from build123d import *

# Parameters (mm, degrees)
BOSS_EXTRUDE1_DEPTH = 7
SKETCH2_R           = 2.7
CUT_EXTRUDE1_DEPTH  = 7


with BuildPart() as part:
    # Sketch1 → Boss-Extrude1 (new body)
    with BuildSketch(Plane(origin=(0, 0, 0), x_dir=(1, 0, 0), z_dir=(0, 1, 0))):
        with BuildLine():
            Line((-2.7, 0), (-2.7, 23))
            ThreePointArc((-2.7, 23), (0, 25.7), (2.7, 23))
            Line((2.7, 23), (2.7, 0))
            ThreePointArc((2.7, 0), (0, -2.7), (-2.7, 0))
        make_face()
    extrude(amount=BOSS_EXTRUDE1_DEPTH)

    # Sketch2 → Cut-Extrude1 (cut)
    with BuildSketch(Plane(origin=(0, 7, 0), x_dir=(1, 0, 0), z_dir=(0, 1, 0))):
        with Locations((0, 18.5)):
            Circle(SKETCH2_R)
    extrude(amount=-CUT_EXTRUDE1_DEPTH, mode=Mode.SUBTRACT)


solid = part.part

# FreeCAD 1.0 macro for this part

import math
import FreeCAD as App
import Part
import Sketcher

V = App.Vector
Q = App.Units.Quantity

doc = App.newDocument("Part")
body = doc.addObject("PartDesign::Body", "Body")
body.AllowCompound = True

# Sketch on XZ plane
sketch1 = body.newObject("Sketcher::SketchObject", "Sketch")
sketch1.AttachmentSupport = (doc.getObject("XZ_Plane"), [""])
sketch1.MapMode = "FlatFace"
sketch1.addGeometry([
    Part.LineSegment(V(-2.7, -23, 0), V(-2.7, 0, 0)),
    Part.ArcOfCircle(Part.Circle(V(0, 0, 0), V(0, 0, 1), 2.7), math.radians(0), math.radians(180)),
    Part.LineSegment(V(2.7, 0, 0), V(2.7, -23, 0)),
    Part.ArcOfCircle(Part.Circle(V(0, -23, 0), V(0, 0, 1), 2.7), math.radians(180), math.radians(360)),
], False)
sketch1.addConstraint([
    Sketcher.Constraint("Tangent", 0, 2, 1, 2),
    Sketcher.Constraint("Tangent", 1, 1, 2, 1),
    Sketcher.Constraint("Tangent", 2, 2, 3, 2),
    Sketcher.Constraint("Tangent", 3, 1, 0, 1),
    Sketcher.Constraint("Vertical", 0),
    Sketcher.Constraint("Vertical", 2),
    Sketcher.Constraint("Coincident", 1, 3, -1, 1),
    Sketcher.Constraint("Radius", 1, Q("2.7 mm")),
    Sketcher.Constraint("DistanceY", 0, 1, 0, 2, Q("23 mm")),
])
pad1 = body.newObject("PartDesign::Pad", "Pad")
pad1.Profile = sketch1
pad1.Length = 7
pad1.Reversed = True

# Sketch on XZ plane
sketch2 = body.newObject("Sketcher::SketchObject", "Sketch001")
sketch2.AttachmentSupport = (doc.getObject("XZ_Plane"), [""])
sketch2.MapMode = "FlatFace"
sketch2.AttachmentOffset = App.Placement(V(0, 0, -7), App.Rotation())
sketch2.addGeometry(Part.Circle(V(0, -18.5, 0), V(0, 0, 1), 2.7), False)
sketch2.addConstraint([
    Sketcher.Constraint("PointOnObject", 0, 3, -2),
    Sketcher.Constraint("Diameter", 0, Q("5.4 mm")),
    Sketcher.Constraint("DistanceY", 0, 3, -1, 1, Q("18.5 mm")),
])
pocket1 = body.newObject("PartDesign::Pocket", "Pocket")
pocket1.Profile = sketch2
pocket1.Length = 7
pocket1.Reversed = True

doc.recompute()
